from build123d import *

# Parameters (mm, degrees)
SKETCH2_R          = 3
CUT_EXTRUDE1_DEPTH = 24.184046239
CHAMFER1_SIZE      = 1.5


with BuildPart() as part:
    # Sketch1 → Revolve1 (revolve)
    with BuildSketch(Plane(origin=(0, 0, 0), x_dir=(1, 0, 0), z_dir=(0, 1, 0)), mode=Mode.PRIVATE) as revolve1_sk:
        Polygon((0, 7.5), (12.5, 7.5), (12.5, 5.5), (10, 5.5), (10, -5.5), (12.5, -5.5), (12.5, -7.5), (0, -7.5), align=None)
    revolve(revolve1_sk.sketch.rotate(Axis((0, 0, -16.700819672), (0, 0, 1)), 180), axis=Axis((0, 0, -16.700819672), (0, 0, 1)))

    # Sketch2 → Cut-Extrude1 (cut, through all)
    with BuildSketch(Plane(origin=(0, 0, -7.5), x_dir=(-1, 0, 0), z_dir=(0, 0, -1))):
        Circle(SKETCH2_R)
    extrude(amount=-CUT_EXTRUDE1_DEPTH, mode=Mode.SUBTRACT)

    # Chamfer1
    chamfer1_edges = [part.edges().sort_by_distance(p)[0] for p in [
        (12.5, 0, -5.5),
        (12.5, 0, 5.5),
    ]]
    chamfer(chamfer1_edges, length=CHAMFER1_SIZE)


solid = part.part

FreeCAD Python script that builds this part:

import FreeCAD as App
import Part
import Sketcher
from FreeCAD import Vector
Q = App.Units.Quantity


def edges_at(feature, points):
    """Names of the edges that pass closest to the given points."""
    edges = feature.Shape.Edges
    near = lambda p: min(range(len(edges)), key=lambda i: edges[i].distToShape(Part.Vertex(*p))[0])
    return sorted({f"Edge{near(p) + 1}" for p in points})


def add_polygon(sketch, points):
    """Adds a closed chain of lines whose ends are joined by coincident constraints."""
    first, n = sketch.GeometryCount, len(points)
    for a, b in zip(points, points[1:] + points[:1]):
        sketch.addGeometry(Part.LineSegment(App.Vector(*a, 0), App.Vector(*b, 0)), False)
    for i in range(n):
        sketch.addConstraint(Sketcher.Constraint("Coincident", first + i, 2, first + (i + 1) % n, 1))

doc = App.newDocument("Part")
body = doc.addObject("PartDesign::Body", "Body")

# Sketch on XZ plane
sketch1 = doc.addObject("Sketcher::SketchObject", "Sketch")
body.addObject(sketch1)
sketch1.AttachmentSupport = (doc.XZ_Plane, [""])
sketch1.MapMode = "FlatFace"
add_polygon(sketch1, [(12.5, -7.5), (0, -7.5), (0, 7.5), (12.5, 7.5), (12.5, 5.5), (10, 5.5), (10, -5.5), (12.5, -5.5)])  # lines 0-7
sketch1.addConstraint(Sketcher.Constraint("Horizontal", 0))
sketch1.addConstraint(Sketcher.Constraint("Vertical", 1))
sketch1.addConstraint(Sketcher.Constraint("Horizontal", 2))
sketch1.addConstraint(Sketcher.Constraint("Vertical", 3))
sketch1.addConstraint(Sketcher.Constraint("Horizontal", 4))
sketch1.addConstraint(Sketcher.Constraint("Vertical", 5))
sketch1.addConstraint(Sketcher.Constraint("Horizontal", 6))
sketch1.addConstraint(Sketcher.Constraint("Vertical", 7))
sketch1.addConstraint(Sketcher.Constraint("Symmetric", 0, 2, 1, 2, -1, 1))
sketch1.addConstraint(Sketcher.Constraint("Symmetric", 3, 2, 6, 2, -1))
sketch1.addConstraint(Sketcher.Constraint("DistanceY", 1, 1, 1, 2, Q("15 mm")))
sketch1.addConstraint(Sketcher.Constraint("DistanceY", 3, 2, 3, 1, Q("2 mm")))
sketch1.addConstraint(Sketcher.Constraint("DistanceX", 0, 2, 0, 1, Q("12.5 mm")))
sketch1.addConstraint(Sketcher.Constraint("DistanceX", 4, 2, 4, 1, Q("2.5 mm")))
revolution = doc.addObject("PartDesign::Revolution", "Revolution")
body.addObject(revolution)
revolution.Profile = sketch1
revolution.ReferenceAxis = (sketch1, ["V_Axis"])
revolution.Angle = 360

# Sketch on XY plane
sketch2 = doc.addObject("Sketcher::SketchObject", "Sketch001")
body.addObject(sketch2)
sketch2.AttachmentSupport = (doc.XY_Plane, [""])
sketch2.MapMode = "FlatFace"
sketch2.AttachmentOffset = App.Placement(Vector(0, 0, -7.5), App.Rotation())
sketch2.addGeometry(Part.Circle(Vector(0, 0, 0), Vector(0, 0, 1), 3), False)
sketch2.addConstraint(Sketcher.Constraint("Coincident", 0, 3, -1, 1))
sketch2.addConstraint(Sketcher.Constraint("Diameter", 0, Q("6 mm")))
pocket1 = doc.addObject("PartDesign::Pocket", "Pocket")
body.addObject(pocket1)
pocket1.Profile = sketch2
pocket1.Type = "ThroughAll"
pocket1.Reversed = True
doc.recompute()

chamfer = doc.addObject("PartDesign::Chamfer", "Chamfer")
body.addObject(chamfer)
chamfer.Base = (pocket1, edges_at(pocket1, [(12.5, 0, -5.5), (12.5, 0, 5.5)]))
chamfer.Size = 1.5

doc.recompute()
